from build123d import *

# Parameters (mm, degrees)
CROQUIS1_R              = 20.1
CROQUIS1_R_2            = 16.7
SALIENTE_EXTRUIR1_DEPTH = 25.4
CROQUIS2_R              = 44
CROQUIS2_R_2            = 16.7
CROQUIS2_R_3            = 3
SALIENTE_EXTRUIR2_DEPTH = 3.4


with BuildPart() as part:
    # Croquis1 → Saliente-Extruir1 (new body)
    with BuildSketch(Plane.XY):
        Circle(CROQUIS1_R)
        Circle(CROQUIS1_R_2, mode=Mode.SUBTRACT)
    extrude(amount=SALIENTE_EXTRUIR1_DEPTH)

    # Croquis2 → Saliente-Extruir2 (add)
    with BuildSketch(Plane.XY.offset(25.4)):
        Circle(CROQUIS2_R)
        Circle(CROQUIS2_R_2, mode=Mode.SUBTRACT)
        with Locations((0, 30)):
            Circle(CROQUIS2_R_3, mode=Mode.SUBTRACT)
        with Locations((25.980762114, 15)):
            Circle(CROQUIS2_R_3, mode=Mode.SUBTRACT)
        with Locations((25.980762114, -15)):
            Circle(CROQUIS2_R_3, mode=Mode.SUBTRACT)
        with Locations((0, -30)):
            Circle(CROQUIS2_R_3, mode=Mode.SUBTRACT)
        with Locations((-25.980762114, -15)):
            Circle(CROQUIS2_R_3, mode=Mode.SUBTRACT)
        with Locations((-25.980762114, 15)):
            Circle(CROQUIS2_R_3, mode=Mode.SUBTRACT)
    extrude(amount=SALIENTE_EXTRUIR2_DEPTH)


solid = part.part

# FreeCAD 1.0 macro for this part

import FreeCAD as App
import Part
import Sketcher

V = App.Vector

doc = App.newDocument("Part")
body = doc.addObject("PartDesign::Body", "Body")

sketch1 = body.newObject("Sketcher::SketchObject", "Sketch")
sketch1.AttachmentSupport = (doc.getObject("XY_Plane"), [""])
sketch1.MapMode = "FlatFace"
sketch1.addGeometry(Part.Circle(V(0, 0, 0), V(0, 0, 1), 20.1), False)
sketch1.addGeometry(Part.Circle(V(0, 0, 0), V(0, 0, 1), 16.7), False)
sketch1.addConstraint(Sketcher.Constraint("Coincident", 0, 3, -1, 1))
sketch1.addConstraint(Sketcher.Constraint("Coincident", 1, 3, -1, 1))
sketch1.addConstraint(Sketcher.Constraint("Diameter", 0, 40.2))
sketch1.addConstraint(Sketcher.Constraint("Diameter", 1, 33.4))
pad1 = body.newObject("PartDesign::Pad", "Pad")
pad1.Profile = sketch1
pad1.Length = 25.4

sketch2 = body.newObject("Sketcher::SketchObject", "Sketch001")
sketch2.AttachmentSupport = (doc.getObject("XY_Plane"), [""])
sketch2.MapMode = "FlatFace"
sketch2.AttachmentOffset = App.Placement(V(0, 0, 25.4), App.Rotation())
sketch2.addGeometry(Part.Circle(V(0, 0, 0), V(0, 0, 1), 44), False)
sketch2.addGeometry(Part.Circle(V(0, -30, 0), V(0, 0, 1), 3), False)
sketch2.addGeometry(Part.Circle(V(-25.980762, -15, 0), V(0, 0, 1), 3), False)
sketch2.addGeometry(Part.Circle(V(25.980762, -15, 0), V(0, 0, 1), 3), False)
sketch2.addGeometry(Part.Circle(V(-25.980762, 15, 0), V(0, 0, 1), 3), False)
sketch2.addGeometry(Part.Circle(V(0, 0, 0), V(0, 0, 1), 16.7), False)
sketch2.addGeometry(Part.Circle(V(0, 30, 0), V(0, 0, 1), 3), False)
sketch2.addGeometry(Part.Circle(V(25.980762, 15, 0), V(0, 0, 1), 3), False)
sketch2.addConstraint(Sketcher.Constraint("Coincident", 0, 3, -1, 1))
sketch2.addConstraint(Sketcher.Constraint("Coincident", 5, 3, -1, 1))
sketch2.addConstraint(Sketcher.Constraint("Equal", 1, 2))
sketch2.addConstraint(Sketcher.Constraint("Equal", 2, 3))
sketch2.addConstraint(Sketcher.Constraint("Equal", 3, 4))
sketch2.addConstraint(Sketcher.Constraint("Equal", 4, 6))
sketch2.addConstraint(Sketcher.Constraint("Equal", 6, 7))
sketch2.addConstraint(Sketcher.Constraint("Symmetric", 3, 3, 4, 3, -1, 1))
sketch2.addConstraint(Sketcher.Constraint("Symmetric", 1, 3, 6, 3, -1, 1))
sketch2.addConstraint(Sketcher.Constraint("Symmetric", 2, 3, 7, 3, -1, 1))
sketch2.addConstraint(Sketcher.Constraint("Symmetric", 2, 3, 3, 3, -2))
sketch2.addConstraint(Sketcher.Constraint("PointOnObject", 1, 3, -2))
sketch2.addConstraint(Sketcher.Constraint("Diameter", 0, 88.0))
sketch2.addConstraint(Sketcher.Constraint("Diameter", 1, 6.0))
sketch2.addConstraint(Sketcher.Constraint("Diameter", 5, 33.4))
sketch2.addConstraint(Sketcher.Constraint("DistanceY", 1, 3, -1, 1, 30.0))
sketch2.addConstraint(Sketcher.Constraint("DistanceY", 2, 3, -1, 1, 15.0))
sketch2.addConstraint(Sketcher.Constraint("DistanceX", 2, 3, -1, 1, 25.980762))
pad2 = body.newObject("PartDesign::Pad", "Pad001")
pad2.Profile = sketch2
pad2.Length = 3.4

doc.recompute()
